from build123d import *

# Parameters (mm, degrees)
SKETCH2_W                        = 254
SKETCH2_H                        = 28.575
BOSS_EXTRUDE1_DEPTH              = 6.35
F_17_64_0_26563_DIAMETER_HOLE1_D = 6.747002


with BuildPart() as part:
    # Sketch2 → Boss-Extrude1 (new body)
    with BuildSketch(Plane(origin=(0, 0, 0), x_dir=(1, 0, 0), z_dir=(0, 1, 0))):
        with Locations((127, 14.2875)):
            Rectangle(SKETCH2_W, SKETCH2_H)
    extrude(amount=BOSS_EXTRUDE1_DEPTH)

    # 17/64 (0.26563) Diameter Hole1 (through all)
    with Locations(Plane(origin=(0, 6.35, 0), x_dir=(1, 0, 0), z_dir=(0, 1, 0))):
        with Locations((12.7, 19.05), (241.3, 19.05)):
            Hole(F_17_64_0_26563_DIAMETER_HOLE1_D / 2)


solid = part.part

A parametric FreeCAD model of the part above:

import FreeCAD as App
import Part
import Sketcher
from FreeCAD import Vector
Q = App.Units.Quantity


def add_polygon(sketch, points):
    """Adds a closed chain of lines whose ends are joined by coincident constraints."""
    first, n = sketch.GeometryCount, len(points)
    for a, b in zip(points, points[1:] + points[:1]):
        sketch.addGeometry(Part.LineSegment(App.Vector(*a, 0), App.Vector(*b, 0)), False)
    for i in range(n):
        sketch.addConstraint(Sketcher.Constraint("Coincident", first + i, 2, first + (i + 1) % n, 1))

doc = App.newDocument("Part")
body = doc.addObject("PartDesign::Body", "Body")

# Sketch on XZ plane
sketch1 = body.newObject("Sketcher::SketchObject", "Sketch")
sketch1.AttachmentSupport = (doc.getObject("XZ_Plane"), [""])
sketch1.MapMode = "FlatFace"
add_polygon(sketch1, [(0, -29), (0, 0), (254, 0), (254, -29)])  # lines 0-3
sketch1.addConstraint([
    Sketcher.Constraint("Vertical", 0),
    Sketcher.Constraint("Horizontal", 1),
    Sketcher.Constraint("Vertical", 2),
    Sketcher.Constraint("Horizontal", 3),
    Sketcher.Constraint("Coincident", 0, 2, -1, 1),
    Sketcher.Constraint("DistanceX", 1, 1, 1, 2, Q("10 in")),
    Sketcher.Constraint("DistanceY", 0, 1, 0, 2, Q("1.125 in")),
])
pad1 = body.newObject("PartDesign::Pad", "Pad")
pad1.Profile = sketch1
pad1.Length = Q("0.25 in")
pad1.Reversed = True

# Sketch on XZ plane
sketch2 = body.newObject("Sketcher::SketchObject", "Sketch001")
sketch2.AttachmentSupport = (doc.getObject("XZ_Plane"), [""])
sketch2.MapMode = "FlatFace"
sketch2.AttachmentOffset = App.Placement(Vector(0, 0, -0.25 * 25.4), App.Rotation())
sketch2.addGeometry([
    Part.Circle(Vector(12.7, -19.1, 0), Vector(0, 0, 1), 3.4),
    Part.Circle(Vector(241.3, -19.1, 0), Vector(0, 0, 1), 3.4),
], False)
sketch2.addConstraint([
    Sketcher.Constraint("Equal", 0, 1),
    Sketcher.Constraint("Horizontal", 0, 3, 1, 3),
    Sketcher.Constraint("DistanceX", 0, 3, 1, 3, Q("9 in")),
    Sketcher.Constraint("DistanceX", -1, 1, 0, 3, Q("0.5 in")),
    Sketcher.Constraint("DistanceY", 0, 3, -1, 1, Q("0.75 in")),
    Sketcher.Constraint("Diameter", 0, 6.747002),
])
doc.recompute()
hole = body.newObject("PartDesign::Hole", "Hole")
hole.Profile = sketch2
hole.ThreadType = "None"
hole.Diameter = 6.747002
hole.DepthType = "ThroughAll"
hole.Reversed = True

doc.recompute()
